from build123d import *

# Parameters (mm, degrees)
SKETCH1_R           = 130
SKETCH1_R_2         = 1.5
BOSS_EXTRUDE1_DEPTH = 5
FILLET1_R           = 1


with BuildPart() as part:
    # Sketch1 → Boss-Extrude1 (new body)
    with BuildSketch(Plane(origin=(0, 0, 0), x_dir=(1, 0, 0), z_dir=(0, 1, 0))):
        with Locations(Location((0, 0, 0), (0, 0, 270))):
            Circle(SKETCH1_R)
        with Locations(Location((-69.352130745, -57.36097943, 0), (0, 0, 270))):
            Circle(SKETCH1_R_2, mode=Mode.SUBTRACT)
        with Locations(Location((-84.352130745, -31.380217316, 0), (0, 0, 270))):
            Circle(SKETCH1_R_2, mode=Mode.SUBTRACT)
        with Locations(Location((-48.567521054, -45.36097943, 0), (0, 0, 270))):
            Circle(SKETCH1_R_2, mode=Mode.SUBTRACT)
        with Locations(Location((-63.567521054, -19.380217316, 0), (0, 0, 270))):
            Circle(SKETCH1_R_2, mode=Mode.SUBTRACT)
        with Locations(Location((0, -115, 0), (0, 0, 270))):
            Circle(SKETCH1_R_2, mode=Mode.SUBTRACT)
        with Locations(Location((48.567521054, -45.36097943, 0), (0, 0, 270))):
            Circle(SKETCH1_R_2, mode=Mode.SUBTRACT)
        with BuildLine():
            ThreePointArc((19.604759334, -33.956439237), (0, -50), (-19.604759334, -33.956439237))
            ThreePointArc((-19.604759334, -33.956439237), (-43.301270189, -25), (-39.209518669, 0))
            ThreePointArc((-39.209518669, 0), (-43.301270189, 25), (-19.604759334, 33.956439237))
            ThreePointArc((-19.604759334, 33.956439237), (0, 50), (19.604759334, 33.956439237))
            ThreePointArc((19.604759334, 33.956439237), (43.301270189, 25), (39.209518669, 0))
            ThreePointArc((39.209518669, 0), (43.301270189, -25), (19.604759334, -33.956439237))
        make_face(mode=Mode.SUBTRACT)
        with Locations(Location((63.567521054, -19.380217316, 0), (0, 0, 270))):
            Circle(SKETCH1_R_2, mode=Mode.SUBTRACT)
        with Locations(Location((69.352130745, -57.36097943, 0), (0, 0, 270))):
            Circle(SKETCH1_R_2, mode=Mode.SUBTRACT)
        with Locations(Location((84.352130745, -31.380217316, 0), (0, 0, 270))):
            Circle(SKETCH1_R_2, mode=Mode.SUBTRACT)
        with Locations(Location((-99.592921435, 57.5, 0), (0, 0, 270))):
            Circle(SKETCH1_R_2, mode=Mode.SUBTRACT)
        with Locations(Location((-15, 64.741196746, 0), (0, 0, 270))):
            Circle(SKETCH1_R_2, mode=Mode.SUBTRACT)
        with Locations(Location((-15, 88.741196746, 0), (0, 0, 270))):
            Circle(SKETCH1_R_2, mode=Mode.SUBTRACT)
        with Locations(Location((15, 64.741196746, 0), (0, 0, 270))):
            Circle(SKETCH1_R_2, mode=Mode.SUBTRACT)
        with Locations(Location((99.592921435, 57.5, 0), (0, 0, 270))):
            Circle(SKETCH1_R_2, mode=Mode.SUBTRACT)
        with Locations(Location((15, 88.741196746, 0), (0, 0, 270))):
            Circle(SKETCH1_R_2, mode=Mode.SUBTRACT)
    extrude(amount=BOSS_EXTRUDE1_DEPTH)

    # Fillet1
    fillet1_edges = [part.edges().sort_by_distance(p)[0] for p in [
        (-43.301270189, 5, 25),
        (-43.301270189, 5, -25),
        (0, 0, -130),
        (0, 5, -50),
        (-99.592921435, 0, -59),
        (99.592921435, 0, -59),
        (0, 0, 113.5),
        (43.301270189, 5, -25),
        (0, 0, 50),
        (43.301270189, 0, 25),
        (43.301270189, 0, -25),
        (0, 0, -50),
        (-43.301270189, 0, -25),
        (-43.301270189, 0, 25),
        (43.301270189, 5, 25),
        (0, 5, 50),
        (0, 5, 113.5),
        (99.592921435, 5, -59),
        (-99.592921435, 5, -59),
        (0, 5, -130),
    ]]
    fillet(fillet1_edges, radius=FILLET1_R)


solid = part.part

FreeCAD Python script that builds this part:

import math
import FreeCAD as App
import Part
import Sketcher


def edges_at(feature, points):
    """Names of the edges that pass closest to the given points."""
    edges = feature.Shape.Edges
    near = lambda p: min(range(len(edges)), key=lambda i: edges[i].distToShape(Part.Vertex(*p))[0])
    return sorted({f"Edge{near(p) + 1}" for p in points})

doc = App.newDocument("Part")
body = doc.addObject("PartDesign::Body", "Body")

# Sketch on XZ plane
sketch1 = body.newObject("Sketcher::SketchObject", "Sketch")
sketch1.AttachmentSupport = (doc.getObject("XZ_Plane"), [""])
sketch1.MapMode = "FlatFace"
sketch1.addGeometry([
    Part.Circle(App.Vector(0, 0, 0), App.Vector(0, 0, 1), 130),  # 0
    Part.Circle(App.Vector(-99.6, -57.5, 0), App.Vector(0, 0, 1), 1.5),  # 1
    Part.Circle(App.Vector(-15, -88.7, 0), App.Vector(0, 0, 1), 1.5),  # 2
    Part.Circle(App.Vector(-15, -64.7, 0), App.Vector(0, 0, 1), 1.5),  # 3
    Part.Circle(App.Vector(-84.4, 31.4, 0), App.Vector(0, 0, 1), 1.5),  # 4
    Part.Circle(App.Vector(-63.6, 19.4, 0), App.Vector(0, 0, 1), 1.5),  # 5
    Part.Circle(App.Vector(-69.4, 57.4, 0), App.Vector(0, 0, 1), 1.5),  # 6
    Part.Circle(App.Vector(-48.6, 45.4, 0), App.Vector(0, 0, 1), 1.5),  # 7
    Part.Circle(App.Vector(15, -88.7, 0), App.Vector(0, 0, 1), 1.5),  # 8
    Part.Circle(App.Vector(15, -64.7, 0), App.Vector(0, 0, 1), 1.5),  # 9
    Part.ArcOfCircle(Part.Circle(App.Vector(26, 15, 0), App.Vector(0, 0, 1), 20), math.radians(-49), math.radians(109)),  # 10
    Part.ArcOfCircle(Part.Circle(App.Vector(0, 30, 0), App.Vector(0, 0, 1), 20), math.radians(11), math.radians(169)),  # 11
    Part.ArcOfCircle(Part.Circle(App.Vector(-26, 15, 0), App.Vector(0, 0, 1), 20), math.radians(71), math.radians(229)),  # 12
    Part.ArcOfCircle(Part.Circle(App.Vector(-26, -15, 0), App.Vector(0, 0, 1), 20), math.radians(131), math.radians(289)),  # 13
    Part.ArcOfCircle(Part.Circle(App.Vector(0, -30, 0), App.Vector(0, 0, 1), 20), math.radians(-169), math.radians(-11)),  # 14
    Part.ArcOfCircle(Part.Circle(App.Vector(26, -15, 0), App.Vector(0, 0, 1), 20), math.radians(-109), math.radians(49)),  # 15
    Part.Circle(App.Vector(99.6, -57.5, 0), App.Vector(0, 0, 1), 1.5),  # 16
    Part.Circle(App.Vector(48.6, 45.4, 0), App.Vector(0, 0, 1), 1.5),  # 17
    Part.Circle(App.Vector(0, 115, 0), App.Vector(0, 0, 1), 1.5),  # 18
    Part.Circle(App.Vector(63.6, 19.4, 0), App.Vector(0, 0, 1), 1.5),  # 19
    Part.Circle(App.Vector(69.4, 57.4, 0), App.Vector(0, 0, 1), 1.5),  # 20
    Part.Circle(App.Vector(84.4, 31.4, 0), App.Vector(0, 0, 1), 1.5),  # 21
], False)
sketch1.addConstraint([
    Sketcher.Constraint("Coincident", 10, 2, 11, 1),
    Sketcher.Constraint("Coincident", 11, 2, 12, 1),
    Sketcher.Constraint("Coincident", 12, 2, 13, 1),
    Sketcher.Constraint("Coincident", 13, 2, 14, 1),
    Sketcher.Constraint("Coincident", 14, 2, 15, 1),
    Sketcher.Constraint("Coincident", 15, 2, 10, 1),
    Sketcher.Constraint("Coincident", 0, 3, -1, 1),
    Sketcher.Constraint("Equal", 1, 2),
    Sketcher.Constraint("Equal", 2, 3),
    Sketcher.Constraint("Equal", 3, 4),
    Sketcher.Constraint("Equal", 4, 5),
    Sketcher.Constraint("Equal", 5, 6),
    Sketcher.Constraint("Equal", 6, 7),
    Sketcher.Constraint("Equal", 7, 8),
    Sketcher.Constraint("Equal", 8, 9),
    Sketcher.Constraint("Equal", 10, 11),
    Sketcher.Constraint("Equal", 11, 12),
    Sketcher.Constraint("Equal", 12, 13),
    Sketcher.Constraint("Equal", 13, 14),
    Sketcher.Constraint("Equal", 14, 15),
    Sketcher.Constraint("Equal", 9, 16),
    Sketcher.Constraint("Equal", 16, 17),
    Sketcher.Constraint("Equal", 17, 18),
    Sketcher.Constraint("Equal", 18, 19),
    Sketcher.Constraint("Equal", 19, 20),
    Sketcher.Constraint("Equal", 20, 21),
    Sketcher.Constraint("Symmetric", 10, 3, 13, 3, -1, 1),
    Sketcher.Constraint("Symmetric", 11, 3, 14, 3, -1, 1),
    Sketcher.Constraint("Symmetric", 12, 3, 15, 3, -1, 1),
    Sketcher.Constraint("Symmetric", 2, 3, 8, 3, -2),
    Sketcher.Constraint("Symmetric", 3, 3, 9, 3, -2),
    Sketcher.Constraint("Symmetric", 10, 3, 12, 3, -2),
    Sketcher.Constraint("Symmetric", 1, 3, 16, 3, -2),
    Sketcher.Constraint("Symmetric", 7, 3, 17, 3, -2),
    Sketcher.Constraint("Symmetric", 5, 3, 19, 3, -2),
    Sketcher.Constraint("Symmetric", 6, 3, 20, 3, -2),
    Sketcher.Constraint("Symmetric", 4, 3, 21, 3, -2),
    Sketcher.Constraint("PointOnObject", 11, 3, -2),
    Sketcher.Constraint("PointOnObject", 18, 3, -2),
    Sketcher.Constraint("Vertical", 2, 3, 3, 3),
    Sketcher.Constraint("Diameter", 0, 260.0),
    Sketcher.Constraint("Diameter", 1, 3.0),
    Sketcher.Constraint("Radius", 10, 20.0),
    Sketcher.Constraint("DistanceX", 2, 3, -1, 1, 15.0),
    Sketcher.Constraint("DistanceY", -1, 1, 10, 3, 15.0),
    Sketcher.Constraint("DistanceY", -1, 1, 11, 3, 30.0),
    Sketcher.Constraint("DistanceY", -1, 1, 18, 3, 115.0),
    Sketcher.Constraint("DistanceY", 2, 3, 3, 3, 24.0),
    Sketcher.Constraint("DistanceY", 5, 3, 4, 3, 12.0),
    Sketcher.Constraint("DistanceX", 4, 3, 6, 3, 15.0),
    Sketcher.Constraint("DistanceY", 7, 3, 6, 3, 12.0),
    Sketcher.Constraint("DistanceX", 5, 3, 7, 3, 15.0),
    Sketcher.Constraint("DistanceY", 1, 3, -1, 1, 57.5),
    Sketcher.Constraint("DistanceX", 1, 3, 5, 3, 36.0254),
    Sketcher.Constraint("DistanceX", 1, 3, -1, 1, 99.592921),
    Sketcher.Constraint("DistanceX", 4, 3, -1, 1, 84.352131),
    Sketcher.Constraint("DistanceY", -1, 1, 6, 3, 57.360979),
    Sketcher.Constraint("DistanceY", -1, 1, 10, 2, 33.956439),
    Sketcher.Constraint("DistanceY", 19, 3, 10, 2, 14.576222),
    Sketcher.Constraint("DistanceY", 2, 3, -1, 1, 88.741197),
])
pad1 = body.newObject("PartDesign::Pad", "Pad")
pad1.Profile = sketch1
pad1.Length = 5
pad1.Reversed = True
doc.recompute()

fillet = body.newObject("PartDesign::Fillet", "Fillet")
fillet.Base = (pad1, edges_at(pad1, [
    (-43.301, 5, 25),
    (-43.301, 5, -25),
    (0, 0, -130),
    (0, 5, -50),
    (-99.593, 0, -59),
    (99.593, 0, -59),
    (0, 0, 113.5),
    (43.301, 5, -25),
    (0, 0, 50),
    (43.301, 0, 25),
    (43.301, 0, -25),
    (0, 0, -50),
    (-43.301, 0, -25),
    (-43.301, 0, 25),
    (43.301, 5, 25),
    (0, 5, 50),
    (0, 5, 113.5),
    (99.593, 5, -59),
    (-99.593, 5, -59),
    (0, 5, -130),
]))
fillet.Radius = 1

doc.recompute()
